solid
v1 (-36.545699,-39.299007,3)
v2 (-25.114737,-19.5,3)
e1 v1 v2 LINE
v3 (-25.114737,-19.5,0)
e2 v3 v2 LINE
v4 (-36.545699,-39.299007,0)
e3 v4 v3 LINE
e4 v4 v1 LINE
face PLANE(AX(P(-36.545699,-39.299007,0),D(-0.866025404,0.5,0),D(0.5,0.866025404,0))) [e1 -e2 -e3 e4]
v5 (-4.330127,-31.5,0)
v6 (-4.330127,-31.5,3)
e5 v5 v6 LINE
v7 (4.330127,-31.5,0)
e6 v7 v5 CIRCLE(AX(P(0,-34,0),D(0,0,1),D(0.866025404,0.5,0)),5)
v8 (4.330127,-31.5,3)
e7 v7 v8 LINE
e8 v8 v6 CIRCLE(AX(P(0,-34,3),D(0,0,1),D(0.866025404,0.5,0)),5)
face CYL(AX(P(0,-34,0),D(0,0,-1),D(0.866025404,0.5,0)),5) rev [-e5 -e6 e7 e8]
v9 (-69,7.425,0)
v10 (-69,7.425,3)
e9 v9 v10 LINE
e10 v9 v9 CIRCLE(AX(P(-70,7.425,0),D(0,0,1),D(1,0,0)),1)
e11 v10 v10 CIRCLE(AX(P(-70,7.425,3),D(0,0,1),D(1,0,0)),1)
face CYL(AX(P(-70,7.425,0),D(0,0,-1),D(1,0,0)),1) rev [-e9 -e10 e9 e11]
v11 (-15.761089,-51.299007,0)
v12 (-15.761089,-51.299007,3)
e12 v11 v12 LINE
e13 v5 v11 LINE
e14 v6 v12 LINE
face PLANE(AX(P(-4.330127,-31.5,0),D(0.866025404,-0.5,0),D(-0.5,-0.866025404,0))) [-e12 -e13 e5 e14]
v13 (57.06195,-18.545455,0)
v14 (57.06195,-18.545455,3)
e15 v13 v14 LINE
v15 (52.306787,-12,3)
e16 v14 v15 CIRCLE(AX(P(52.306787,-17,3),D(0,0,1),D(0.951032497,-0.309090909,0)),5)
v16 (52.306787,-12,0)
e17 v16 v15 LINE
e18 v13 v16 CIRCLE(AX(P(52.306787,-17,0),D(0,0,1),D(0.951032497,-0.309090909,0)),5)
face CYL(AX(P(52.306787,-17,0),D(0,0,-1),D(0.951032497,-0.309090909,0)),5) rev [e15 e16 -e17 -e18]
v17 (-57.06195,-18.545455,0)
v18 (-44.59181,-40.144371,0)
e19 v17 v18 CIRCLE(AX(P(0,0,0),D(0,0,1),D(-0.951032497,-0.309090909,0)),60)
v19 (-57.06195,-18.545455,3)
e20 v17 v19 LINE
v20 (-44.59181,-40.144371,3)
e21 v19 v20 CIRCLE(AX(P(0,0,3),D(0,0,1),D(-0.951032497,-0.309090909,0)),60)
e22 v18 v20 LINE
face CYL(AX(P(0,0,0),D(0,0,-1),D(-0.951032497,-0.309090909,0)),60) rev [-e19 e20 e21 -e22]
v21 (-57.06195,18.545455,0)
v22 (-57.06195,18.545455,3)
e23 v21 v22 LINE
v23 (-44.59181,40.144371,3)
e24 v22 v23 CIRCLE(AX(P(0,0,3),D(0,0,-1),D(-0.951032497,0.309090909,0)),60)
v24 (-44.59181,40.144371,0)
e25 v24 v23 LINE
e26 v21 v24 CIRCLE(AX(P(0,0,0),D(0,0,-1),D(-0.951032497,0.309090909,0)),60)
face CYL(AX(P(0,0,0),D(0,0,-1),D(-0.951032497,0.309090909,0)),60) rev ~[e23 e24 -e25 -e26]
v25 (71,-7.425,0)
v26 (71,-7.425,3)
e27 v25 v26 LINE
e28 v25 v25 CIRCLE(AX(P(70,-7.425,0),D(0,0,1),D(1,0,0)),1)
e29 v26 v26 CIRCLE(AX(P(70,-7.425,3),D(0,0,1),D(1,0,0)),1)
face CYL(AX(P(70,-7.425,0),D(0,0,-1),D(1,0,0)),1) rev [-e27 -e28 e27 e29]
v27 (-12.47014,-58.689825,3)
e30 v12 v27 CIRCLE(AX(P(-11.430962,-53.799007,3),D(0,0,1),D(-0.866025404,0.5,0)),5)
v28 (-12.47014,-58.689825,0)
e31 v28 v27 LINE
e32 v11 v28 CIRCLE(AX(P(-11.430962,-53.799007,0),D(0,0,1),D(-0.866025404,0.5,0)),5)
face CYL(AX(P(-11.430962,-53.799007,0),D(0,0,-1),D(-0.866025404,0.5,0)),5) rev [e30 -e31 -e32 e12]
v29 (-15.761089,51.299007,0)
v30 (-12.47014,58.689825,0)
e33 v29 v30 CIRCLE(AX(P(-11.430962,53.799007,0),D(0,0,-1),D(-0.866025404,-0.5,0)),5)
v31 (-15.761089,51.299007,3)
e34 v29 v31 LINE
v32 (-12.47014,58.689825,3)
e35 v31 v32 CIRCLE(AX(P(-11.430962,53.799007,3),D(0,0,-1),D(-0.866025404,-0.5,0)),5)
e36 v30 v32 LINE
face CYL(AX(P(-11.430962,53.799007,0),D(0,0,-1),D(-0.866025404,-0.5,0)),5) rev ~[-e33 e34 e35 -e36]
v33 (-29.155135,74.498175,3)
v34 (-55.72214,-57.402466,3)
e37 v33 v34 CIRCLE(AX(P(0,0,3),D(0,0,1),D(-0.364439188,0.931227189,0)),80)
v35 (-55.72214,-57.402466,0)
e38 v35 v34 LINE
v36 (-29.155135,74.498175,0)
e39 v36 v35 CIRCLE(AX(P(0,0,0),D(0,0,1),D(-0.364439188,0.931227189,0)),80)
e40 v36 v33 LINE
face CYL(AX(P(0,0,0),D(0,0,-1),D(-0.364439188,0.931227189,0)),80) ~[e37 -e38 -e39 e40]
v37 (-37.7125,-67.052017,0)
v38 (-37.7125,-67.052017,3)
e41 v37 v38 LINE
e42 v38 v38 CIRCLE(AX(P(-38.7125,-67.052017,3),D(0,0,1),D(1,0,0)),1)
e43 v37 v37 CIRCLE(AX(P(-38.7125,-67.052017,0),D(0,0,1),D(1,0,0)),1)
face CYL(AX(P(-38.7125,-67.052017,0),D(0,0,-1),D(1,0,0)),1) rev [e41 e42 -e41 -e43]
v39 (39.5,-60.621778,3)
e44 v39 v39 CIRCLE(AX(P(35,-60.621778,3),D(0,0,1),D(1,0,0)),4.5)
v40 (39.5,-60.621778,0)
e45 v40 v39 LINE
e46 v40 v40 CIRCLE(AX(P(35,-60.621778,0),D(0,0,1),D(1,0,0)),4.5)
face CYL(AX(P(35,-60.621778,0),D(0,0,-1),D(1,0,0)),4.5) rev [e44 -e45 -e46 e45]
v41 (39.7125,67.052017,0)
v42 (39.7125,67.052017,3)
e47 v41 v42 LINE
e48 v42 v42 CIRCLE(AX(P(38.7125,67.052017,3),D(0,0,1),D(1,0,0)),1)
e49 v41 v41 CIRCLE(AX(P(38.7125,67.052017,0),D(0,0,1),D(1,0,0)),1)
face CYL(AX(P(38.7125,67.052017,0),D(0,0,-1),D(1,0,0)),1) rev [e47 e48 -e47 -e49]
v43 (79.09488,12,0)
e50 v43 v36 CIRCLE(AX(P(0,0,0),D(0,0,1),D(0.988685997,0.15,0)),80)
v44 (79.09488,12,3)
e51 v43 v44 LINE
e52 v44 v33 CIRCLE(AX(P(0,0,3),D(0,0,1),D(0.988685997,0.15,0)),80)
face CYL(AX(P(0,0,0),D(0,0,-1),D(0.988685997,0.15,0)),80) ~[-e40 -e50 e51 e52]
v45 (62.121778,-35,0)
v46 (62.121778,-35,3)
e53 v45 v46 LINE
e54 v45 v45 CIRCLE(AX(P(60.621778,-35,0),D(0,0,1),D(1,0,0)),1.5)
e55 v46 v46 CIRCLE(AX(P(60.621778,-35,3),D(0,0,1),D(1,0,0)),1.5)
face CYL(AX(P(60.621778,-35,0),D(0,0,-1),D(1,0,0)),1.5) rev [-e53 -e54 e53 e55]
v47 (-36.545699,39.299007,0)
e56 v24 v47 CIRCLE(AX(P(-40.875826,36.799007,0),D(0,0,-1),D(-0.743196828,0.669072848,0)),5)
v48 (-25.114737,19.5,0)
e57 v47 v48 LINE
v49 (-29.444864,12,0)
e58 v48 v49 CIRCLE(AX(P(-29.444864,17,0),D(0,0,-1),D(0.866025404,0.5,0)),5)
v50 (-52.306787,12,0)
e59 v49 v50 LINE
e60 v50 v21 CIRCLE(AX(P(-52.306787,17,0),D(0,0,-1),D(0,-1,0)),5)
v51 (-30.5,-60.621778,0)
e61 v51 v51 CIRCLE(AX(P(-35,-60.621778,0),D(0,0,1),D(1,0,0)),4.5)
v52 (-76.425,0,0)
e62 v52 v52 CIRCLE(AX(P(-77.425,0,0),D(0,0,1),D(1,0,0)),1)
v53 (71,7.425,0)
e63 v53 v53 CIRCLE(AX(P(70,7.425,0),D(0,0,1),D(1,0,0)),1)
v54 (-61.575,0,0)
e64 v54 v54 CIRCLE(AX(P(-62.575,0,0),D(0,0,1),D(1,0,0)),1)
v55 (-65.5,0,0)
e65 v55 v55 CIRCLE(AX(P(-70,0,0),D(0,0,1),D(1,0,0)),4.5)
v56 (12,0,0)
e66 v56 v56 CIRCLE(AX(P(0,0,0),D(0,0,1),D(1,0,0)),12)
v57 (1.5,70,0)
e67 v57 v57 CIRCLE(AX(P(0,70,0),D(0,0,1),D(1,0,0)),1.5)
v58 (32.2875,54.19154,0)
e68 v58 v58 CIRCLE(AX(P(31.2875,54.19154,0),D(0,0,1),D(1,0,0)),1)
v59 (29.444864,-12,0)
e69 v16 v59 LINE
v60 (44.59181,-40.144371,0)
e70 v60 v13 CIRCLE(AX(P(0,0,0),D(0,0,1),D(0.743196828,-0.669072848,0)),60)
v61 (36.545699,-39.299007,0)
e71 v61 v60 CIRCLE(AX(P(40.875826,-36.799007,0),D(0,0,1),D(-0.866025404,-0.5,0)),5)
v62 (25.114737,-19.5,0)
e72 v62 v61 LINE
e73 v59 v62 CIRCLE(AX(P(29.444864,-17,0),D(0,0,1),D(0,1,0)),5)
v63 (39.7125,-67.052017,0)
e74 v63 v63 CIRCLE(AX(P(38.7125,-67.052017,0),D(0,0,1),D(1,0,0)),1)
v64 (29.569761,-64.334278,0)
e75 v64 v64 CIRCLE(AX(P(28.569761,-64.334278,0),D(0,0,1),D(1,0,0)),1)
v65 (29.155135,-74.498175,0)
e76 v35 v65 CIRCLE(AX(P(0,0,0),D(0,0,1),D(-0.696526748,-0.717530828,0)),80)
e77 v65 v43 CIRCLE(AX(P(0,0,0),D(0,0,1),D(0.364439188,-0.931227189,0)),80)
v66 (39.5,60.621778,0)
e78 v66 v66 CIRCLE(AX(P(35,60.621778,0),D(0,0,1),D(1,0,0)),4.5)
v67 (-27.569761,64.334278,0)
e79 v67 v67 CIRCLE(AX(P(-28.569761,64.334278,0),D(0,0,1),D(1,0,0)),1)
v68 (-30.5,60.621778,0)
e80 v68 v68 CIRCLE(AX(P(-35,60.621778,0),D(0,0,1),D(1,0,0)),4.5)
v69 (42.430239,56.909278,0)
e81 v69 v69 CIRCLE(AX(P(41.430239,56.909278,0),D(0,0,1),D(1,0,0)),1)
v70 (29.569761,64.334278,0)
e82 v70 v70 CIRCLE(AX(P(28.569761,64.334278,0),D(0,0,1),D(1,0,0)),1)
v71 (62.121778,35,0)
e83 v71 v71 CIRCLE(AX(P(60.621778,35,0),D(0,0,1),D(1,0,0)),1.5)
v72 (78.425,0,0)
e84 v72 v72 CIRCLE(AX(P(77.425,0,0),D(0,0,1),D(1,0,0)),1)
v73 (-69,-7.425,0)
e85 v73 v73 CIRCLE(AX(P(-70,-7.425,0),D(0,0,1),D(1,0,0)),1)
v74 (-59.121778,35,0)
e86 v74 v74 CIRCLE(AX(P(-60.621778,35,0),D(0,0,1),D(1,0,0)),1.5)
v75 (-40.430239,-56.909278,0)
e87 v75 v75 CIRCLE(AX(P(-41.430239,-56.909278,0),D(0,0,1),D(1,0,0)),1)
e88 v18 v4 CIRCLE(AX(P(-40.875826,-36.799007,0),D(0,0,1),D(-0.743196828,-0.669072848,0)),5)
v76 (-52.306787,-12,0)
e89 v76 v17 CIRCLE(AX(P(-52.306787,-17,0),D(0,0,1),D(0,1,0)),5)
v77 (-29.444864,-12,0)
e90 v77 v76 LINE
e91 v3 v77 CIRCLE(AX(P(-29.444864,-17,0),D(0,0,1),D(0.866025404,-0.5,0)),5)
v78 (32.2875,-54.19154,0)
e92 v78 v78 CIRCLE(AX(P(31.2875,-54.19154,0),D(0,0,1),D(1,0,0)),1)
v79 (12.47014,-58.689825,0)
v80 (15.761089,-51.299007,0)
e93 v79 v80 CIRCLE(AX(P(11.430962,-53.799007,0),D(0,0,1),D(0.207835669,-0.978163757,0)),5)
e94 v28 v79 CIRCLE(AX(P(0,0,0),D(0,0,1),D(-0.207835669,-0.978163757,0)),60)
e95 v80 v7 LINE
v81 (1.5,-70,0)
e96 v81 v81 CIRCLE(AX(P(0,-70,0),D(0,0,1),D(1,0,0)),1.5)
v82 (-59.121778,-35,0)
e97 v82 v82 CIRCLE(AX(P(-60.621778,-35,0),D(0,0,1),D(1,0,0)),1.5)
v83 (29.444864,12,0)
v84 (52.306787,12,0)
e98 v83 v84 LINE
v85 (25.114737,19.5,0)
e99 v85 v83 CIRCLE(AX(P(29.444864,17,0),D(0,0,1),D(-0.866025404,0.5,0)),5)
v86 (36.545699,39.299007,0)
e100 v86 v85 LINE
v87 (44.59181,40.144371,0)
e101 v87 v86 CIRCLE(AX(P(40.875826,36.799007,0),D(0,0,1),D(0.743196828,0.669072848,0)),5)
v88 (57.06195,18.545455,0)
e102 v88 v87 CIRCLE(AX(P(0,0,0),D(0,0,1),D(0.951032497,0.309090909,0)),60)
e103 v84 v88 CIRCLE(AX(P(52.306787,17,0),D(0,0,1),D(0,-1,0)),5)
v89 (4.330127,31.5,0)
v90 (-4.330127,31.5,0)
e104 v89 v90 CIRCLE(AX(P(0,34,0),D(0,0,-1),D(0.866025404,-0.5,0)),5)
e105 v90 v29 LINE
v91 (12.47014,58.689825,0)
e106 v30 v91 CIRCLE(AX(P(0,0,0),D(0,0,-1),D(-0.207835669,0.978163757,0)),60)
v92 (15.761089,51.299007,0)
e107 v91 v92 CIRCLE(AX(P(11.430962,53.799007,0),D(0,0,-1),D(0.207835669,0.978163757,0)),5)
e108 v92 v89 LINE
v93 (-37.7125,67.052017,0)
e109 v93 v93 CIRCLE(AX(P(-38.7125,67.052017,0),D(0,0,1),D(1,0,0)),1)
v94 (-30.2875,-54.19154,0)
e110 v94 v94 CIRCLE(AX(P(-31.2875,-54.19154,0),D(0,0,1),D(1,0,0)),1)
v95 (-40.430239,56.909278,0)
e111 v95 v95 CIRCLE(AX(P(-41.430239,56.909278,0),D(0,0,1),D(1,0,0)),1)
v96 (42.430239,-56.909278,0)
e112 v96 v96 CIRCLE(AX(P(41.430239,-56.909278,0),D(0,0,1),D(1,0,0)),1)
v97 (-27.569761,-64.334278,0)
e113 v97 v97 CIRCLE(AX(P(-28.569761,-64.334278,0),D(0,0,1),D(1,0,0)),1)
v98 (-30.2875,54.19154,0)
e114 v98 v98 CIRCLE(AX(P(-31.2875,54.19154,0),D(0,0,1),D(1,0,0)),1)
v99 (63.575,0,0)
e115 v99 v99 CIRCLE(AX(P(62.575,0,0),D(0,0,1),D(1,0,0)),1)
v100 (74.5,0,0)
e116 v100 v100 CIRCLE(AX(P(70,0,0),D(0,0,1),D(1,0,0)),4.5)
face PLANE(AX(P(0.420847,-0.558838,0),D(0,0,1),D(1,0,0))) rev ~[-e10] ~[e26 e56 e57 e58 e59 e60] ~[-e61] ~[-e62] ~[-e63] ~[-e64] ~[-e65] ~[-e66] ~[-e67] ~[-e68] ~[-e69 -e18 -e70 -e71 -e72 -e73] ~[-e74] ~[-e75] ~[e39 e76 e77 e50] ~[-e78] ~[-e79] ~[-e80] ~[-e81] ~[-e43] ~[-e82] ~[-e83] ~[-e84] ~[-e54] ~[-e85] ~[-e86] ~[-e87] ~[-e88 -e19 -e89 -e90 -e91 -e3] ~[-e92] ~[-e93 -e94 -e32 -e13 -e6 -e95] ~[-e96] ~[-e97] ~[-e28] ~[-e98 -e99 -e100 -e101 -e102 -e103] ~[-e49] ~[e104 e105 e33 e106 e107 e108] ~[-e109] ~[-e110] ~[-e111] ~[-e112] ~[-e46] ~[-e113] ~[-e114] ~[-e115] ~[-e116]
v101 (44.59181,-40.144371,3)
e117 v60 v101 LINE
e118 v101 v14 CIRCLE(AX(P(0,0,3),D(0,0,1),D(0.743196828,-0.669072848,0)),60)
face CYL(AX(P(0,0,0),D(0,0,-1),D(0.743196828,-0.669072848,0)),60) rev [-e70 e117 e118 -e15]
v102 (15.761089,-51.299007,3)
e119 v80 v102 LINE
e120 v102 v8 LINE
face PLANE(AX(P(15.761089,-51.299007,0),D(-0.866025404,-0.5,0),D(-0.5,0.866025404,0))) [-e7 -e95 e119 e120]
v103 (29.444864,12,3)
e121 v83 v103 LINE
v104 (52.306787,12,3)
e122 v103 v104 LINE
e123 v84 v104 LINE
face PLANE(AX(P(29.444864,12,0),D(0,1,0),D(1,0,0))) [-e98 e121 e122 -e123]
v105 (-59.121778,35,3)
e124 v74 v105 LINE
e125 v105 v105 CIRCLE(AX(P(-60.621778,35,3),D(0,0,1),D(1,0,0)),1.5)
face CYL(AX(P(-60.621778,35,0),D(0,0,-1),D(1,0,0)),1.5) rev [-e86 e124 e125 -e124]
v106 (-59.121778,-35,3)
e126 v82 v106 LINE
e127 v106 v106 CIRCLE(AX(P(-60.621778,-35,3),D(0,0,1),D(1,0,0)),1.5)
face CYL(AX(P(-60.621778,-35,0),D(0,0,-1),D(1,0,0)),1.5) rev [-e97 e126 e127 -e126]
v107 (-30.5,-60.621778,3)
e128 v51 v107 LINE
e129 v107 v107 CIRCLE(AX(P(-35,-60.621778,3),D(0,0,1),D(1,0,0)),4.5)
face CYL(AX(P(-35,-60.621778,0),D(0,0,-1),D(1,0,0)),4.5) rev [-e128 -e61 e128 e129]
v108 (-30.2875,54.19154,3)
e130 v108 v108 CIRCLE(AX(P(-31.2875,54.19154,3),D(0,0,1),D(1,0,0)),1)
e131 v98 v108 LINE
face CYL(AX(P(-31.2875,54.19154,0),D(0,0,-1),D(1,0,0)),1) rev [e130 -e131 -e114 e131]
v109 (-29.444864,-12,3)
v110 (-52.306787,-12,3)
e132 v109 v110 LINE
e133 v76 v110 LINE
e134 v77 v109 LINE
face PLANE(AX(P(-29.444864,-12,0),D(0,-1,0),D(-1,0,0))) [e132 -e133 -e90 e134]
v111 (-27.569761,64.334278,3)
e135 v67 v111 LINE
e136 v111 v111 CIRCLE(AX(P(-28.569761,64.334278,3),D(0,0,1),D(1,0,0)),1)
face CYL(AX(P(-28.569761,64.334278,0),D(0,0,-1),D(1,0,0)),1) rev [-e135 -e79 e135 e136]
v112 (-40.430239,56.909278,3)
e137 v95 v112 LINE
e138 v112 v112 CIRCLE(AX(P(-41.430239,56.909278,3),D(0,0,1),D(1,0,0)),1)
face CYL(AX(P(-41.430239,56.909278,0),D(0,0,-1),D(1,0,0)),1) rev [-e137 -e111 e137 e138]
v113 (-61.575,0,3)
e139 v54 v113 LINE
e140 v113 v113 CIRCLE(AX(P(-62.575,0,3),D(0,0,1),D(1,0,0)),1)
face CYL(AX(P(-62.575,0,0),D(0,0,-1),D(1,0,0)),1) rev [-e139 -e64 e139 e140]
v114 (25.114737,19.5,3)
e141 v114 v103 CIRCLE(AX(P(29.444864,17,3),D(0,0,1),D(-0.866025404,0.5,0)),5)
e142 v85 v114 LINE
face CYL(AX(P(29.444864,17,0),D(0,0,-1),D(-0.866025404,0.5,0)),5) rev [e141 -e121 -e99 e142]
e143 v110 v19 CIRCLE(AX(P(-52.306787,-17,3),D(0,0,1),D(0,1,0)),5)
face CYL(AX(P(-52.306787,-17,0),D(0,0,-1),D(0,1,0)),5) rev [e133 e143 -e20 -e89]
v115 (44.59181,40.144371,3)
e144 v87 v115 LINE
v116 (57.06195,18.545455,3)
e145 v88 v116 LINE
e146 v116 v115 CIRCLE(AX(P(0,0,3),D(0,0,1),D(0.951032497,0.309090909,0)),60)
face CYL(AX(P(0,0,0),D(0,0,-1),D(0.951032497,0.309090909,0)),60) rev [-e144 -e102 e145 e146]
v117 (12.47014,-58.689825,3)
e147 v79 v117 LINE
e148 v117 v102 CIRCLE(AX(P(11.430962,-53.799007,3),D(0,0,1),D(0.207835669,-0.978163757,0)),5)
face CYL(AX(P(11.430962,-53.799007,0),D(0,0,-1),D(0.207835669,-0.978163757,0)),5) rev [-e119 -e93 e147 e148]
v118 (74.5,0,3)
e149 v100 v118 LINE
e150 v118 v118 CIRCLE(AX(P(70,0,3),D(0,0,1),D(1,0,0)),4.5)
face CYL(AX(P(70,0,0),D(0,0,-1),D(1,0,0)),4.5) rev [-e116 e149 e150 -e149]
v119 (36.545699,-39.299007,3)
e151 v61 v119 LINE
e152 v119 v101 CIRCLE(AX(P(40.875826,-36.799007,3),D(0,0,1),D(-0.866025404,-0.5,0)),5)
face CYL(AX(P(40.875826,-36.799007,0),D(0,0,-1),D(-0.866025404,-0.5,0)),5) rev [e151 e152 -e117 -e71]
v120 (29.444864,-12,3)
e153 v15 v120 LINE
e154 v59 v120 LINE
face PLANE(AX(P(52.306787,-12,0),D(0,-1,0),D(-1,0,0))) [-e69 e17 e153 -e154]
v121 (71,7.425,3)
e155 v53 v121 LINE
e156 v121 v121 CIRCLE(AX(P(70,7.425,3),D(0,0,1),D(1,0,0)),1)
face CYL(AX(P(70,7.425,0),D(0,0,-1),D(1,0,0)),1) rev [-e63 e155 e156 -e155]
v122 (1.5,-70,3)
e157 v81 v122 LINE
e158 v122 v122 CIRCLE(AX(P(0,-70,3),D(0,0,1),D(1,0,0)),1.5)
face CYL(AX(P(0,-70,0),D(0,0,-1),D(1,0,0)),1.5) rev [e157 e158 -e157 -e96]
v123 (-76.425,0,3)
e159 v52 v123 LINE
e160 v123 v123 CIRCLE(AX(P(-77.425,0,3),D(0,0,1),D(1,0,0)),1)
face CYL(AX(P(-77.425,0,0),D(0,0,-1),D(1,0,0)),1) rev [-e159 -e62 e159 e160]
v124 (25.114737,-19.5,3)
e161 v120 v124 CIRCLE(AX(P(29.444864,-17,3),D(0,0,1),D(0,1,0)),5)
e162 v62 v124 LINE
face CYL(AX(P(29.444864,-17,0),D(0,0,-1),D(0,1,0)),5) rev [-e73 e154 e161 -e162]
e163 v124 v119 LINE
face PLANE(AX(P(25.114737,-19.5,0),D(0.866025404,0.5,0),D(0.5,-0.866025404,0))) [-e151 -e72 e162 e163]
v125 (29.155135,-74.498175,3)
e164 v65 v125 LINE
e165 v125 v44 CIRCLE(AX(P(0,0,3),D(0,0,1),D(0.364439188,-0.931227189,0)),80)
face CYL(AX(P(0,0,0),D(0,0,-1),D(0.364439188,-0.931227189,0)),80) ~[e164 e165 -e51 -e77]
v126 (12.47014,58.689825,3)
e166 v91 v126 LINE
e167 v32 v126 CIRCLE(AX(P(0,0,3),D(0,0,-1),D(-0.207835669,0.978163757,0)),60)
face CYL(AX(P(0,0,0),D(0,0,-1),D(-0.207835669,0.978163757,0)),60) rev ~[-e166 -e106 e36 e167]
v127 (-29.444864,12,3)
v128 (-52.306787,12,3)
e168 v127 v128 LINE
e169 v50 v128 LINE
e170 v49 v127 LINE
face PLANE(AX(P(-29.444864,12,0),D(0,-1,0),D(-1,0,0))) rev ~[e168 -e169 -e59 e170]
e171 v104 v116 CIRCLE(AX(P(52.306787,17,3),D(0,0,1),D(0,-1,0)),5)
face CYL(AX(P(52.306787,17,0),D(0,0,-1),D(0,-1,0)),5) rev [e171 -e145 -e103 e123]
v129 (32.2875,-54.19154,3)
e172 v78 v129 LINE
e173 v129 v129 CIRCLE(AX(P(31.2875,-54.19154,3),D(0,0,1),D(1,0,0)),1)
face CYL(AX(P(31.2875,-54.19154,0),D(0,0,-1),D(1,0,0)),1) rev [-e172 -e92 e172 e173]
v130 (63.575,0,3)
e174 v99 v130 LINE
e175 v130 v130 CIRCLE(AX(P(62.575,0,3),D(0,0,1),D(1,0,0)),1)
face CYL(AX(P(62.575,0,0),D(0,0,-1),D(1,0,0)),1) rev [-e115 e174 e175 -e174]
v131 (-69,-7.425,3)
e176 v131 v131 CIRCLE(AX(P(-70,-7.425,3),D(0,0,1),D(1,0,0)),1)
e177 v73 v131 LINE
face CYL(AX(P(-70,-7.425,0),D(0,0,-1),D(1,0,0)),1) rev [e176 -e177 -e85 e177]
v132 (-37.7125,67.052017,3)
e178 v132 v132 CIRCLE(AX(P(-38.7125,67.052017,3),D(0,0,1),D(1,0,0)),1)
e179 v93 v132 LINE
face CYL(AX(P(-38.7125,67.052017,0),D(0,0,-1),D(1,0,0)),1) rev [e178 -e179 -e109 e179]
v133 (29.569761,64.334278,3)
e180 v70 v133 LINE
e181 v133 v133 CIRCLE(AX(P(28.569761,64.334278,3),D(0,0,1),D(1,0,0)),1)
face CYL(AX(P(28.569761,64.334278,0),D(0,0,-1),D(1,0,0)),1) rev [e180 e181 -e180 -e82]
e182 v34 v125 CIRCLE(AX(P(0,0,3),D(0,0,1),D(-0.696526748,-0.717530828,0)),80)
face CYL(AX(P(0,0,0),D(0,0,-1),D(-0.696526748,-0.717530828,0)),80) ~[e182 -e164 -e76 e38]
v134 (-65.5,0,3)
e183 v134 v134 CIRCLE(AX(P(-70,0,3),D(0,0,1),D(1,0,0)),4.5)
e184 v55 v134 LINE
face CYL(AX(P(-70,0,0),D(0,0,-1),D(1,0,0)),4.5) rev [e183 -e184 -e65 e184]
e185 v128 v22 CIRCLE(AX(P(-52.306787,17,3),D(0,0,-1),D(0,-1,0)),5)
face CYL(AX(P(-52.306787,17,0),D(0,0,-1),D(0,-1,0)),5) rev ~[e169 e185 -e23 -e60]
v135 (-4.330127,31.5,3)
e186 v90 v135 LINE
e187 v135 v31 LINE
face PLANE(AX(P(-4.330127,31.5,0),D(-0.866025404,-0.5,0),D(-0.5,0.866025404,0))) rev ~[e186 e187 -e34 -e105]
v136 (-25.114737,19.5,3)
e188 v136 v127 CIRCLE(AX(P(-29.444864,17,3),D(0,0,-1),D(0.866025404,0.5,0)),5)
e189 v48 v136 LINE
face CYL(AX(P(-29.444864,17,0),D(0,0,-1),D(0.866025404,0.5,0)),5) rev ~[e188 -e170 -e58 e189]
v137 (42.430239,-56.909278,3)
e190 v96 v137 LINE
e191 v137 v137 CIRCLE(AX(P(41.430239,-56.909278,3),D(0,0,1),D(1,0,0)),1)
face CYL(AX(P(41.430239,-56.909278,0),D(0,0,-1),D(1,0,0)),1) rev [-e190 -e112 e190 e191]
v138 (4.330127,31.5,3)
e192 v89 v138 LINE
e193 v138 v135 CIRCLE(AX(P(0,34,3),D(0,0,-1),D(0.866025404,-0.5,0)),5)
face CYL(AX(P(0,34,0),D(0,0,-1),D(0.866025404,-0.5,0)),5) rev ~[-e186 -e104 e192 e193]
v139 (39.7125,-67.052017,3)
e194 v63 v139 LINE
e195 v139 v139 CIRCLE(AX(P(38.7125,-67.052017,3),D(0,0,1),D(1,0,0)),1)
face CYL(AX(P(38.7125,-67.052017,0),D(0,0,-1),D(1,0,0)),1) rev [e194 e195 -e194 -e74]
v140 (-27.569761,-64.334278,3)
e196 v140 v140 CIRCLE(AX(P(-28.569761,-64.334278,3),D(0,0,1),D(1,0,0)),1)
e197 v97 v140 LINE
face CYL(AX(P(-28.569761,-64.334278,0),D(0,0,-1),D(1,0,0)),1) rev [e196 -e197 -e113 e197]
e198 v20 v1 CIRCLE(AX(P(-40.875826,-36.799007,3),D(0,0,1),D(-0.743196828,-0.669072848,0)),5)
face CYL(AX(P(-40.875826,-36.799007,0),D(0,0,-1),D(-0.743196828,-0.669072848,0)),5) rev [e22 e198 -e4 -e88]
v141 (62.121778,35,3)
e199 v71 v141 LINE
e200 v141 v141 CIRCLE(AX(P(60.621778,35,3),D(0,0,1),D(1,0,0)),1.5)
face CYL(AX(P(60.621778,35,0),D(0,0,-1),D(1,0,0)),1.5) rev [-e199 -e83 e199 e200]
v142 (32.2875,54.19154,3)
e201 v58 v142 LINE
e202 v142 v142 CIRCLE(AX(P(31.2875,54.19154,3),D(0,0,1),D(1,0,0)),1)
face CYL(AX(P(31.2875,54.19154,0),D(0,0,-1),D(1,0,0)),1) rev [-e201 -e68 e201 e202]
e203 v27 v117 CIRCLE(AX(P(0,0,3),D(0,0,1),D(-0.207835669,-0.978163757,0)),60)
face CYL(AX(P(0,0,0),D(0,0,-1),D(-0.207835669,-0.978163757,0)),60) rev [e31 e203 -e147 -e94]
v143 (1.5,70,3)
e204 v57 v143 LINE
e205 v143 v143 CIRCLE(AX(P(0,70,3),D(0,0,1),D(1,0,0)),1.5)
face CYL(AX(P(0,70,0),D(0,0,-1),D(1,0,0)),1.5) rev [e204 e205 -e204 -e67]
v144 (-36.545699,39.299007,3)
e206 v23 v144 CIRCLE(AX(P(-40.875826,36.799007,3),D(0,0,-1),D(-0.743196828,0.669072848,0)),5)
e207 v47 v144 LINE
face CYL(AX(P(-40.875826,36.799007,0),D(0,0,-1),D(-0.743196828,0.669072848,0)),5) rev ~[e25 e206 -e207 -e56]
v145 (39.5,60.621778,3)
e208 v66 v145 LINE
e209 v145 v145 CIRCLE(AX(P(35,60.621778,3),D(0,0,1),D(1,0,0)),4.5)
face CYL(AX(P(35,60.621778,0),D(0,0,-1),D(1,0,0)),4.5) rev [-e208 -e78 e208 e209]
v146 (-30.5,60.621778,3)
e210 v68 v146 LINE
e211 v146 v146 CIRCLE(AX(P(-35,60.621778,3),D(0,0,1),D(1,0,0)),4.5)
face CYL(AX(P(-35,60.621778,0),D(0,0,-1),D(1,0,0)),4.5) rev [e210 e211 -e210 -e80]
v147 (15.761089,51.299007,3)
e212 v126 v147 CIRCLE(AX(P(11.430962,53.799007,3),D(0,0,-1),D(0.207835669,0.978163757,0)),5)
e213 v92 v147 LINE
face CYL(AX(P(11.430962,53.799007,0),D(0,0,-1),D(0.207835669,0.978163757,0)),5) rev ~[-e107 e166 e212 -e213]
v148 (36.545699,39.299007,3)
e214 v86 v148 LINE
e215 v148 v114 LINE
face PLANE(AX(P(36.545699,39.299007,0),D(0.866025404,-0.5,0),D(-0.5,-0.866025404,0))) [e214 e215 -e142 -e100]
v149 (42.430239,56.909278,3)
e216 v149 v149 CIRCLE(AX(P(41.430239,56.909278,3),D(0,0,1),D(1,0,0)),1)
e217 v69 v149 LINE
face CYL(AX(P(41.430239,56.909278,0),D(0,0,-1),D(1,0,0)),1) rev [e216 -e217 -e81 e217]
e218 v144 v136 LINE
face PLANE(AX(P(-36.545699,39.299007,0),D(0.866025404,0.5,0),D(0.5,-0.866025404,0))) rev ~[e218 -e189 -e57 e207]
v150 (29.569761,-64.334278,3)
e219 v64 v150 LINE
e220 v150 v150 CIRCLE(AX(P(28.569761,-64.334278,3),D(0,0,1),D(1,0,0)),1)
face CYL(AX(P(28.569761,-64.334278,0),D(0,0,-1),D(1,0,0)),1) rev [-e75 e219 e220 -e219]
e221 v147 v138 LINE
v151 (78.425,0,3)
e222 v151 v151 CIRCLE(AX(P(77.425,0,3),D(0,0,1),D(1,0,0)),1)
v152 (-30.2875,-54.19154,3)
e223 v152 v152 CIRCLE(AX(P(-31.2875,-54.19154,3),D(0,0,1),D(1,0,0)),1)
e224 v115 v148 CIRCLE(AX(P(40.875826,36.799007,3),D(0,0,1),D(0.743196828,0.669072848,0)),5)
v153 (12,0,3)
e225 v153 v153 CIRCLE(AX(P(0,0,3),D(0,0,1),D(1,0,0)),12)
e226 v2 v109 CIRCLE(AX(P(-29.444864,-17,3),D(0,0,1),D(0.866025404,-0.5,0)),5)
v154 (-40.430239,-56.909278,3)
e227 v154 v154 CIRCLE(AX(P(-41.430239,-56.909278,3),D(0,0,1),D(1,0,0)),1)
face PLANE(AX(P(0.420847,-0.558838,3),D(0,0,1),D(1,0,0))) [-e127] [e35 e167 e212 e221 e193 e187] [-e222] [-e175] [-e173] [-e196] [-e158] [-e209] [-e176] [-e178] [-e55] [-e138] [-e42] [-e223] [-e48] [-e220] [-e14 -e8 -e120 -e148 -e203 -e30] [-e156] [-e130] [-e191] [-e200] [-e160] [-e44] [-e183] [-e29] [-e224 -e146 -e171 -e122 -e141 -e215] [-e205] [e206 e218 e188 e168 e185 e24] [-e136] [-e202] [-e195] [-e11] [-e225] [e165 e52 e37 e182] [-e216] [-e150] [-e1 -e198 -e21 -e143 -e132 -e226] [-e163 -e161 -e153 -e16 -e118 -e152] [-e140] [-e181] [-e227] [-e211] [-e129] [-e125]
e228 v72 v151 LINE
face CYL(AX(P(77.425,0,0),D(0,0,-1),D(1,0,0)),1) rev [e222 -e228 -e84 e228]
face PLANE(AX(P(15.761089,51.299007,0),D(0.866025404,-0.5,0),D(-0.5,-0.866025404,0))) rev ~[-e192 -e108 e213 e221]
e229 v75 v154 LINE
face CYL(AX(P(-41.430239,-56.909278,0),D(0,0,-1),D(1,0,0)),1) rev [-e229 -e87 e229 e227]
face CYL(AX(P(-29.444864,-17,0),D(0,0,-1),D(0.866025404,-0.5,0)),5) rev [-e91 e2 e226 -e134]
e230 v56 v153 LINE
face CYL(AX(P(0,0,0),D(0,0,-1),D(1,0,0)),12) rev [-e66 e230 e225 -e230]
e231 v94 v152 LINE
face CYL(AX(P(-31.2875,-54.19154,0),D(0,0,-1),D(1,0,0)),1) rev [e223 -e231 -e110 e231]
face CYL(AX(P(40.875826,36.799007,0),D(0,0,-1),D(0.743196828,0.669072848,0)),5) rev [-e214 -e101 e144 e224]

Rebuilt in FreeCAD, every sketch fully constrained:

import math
import FreeCAD as App
import Part
import Sketcher

V = App.Vector
Q = App.Units.Quantity

doc = App.newDocument("Part")
body = doc.addObject("PartDesign::Body", "Body")

# Sketch on XY plane
sketch1 = body.newObject("Sketcher::SketchObject", "Sketch")
sketch1.AttachmentSupport = (doc.getObject("XY_Plane"), [""])
sketch1.MapMode = "FlatFace"
sketch1.addGeometry(Part.ArcOfCircle(Part.Circle(V(0, 0, 0), V(0, 0, 1), 80), math.radians(-134.149005), math.radians(-68.626927)), False)
sketch1.addGeometry(Part.ArcOfCircle(Part.Circle(V(0, 0, 0), V(0, 0, 1), 80), math.radians(-68.626927), math.radians(8.626927)), False)
sketch1.addGeometry(Part.ArcOfCircle(Part.Circle(V(0, 0, 0), V(0, 0, 1), 80), math.radians(8.626927), math.radians(111.373073)), False)
sketch1.addGeometry(Part.ArcOfCircle(Part.Circle(V(0, 0, 0), V(0, 0, 1), 80), math.radians(111.373073), math.radians(225.850995)), False)
sketch1.addGeometry(Part.Circle(V(-41.430239, -56.909278, 0), V(0, 0, 1), 1), False)
sketch1.addGeometry(Part.Circle(V(-38.7125, -67.052017, 0), V(0, 0, 1), 1), False)
sketch1.addGeometry(Part.Circle(V(-28.569761, -64.334278, 0), V(0, 0, 1), 1), False)
sketch1.addGeometry(Part.Circle(V(-35, -60.621778, 0), V(0, 0, 1), 4.5), False)
sketch1.addGeometry(Part.Circle(V(-31.2875, -54.19154, 0), V(0, 0, 1), 1), False)
sketch1.addGeometry(Part.Circle(V(-60.621778, -35, 0), V(0, 0, 1), 1.5), False)
sketch1.addGeometry(Part.LineSegment(V(-25.114737, -19.5, 0), V(-36.545699, -39.299007, 0)), False)
sketch1.addGeometry(Part.ArcOfCircle(Part.Circle(V(-40.875826, -36.799007, 0), V(0, 0, 1), 5), math.radians(-138.004453), math.radians(-30)), False)
sketch1.addGeometry(Part.ArcOfCircle(Part.Circle(V(0, 0, 0), V(0, 0, 1), 60), math.radians(-161.995547), math.radians(-138.004453)), False)
sketch1.addGeometry(Part.ArcOfCircle(Part.Circle(V(-52.306787, -17, 0), V(0, 0, 1), 5), math.radians(90), math.radians(198.004453)), False)
sketch1.addGeometry(Part.LineSegment(V(-52.306787, -12, 0), V(-29.444864, -12, 0)), False)
sketch1.addGeometry(Part.ArcOfCircle(Part.Circle(V(-29.444864, -17, 0), V(0, 0, 1), 5), math.radians(-30), math.radians(90)), False)
sketch1.addGeometry(Part.Circle(V(-70, -7.425, 0), V(0, 0, 1), 1), False)
sketch1.addGeometry(Part.Circle(V(0, -70, 0), V(0, 0, 1), 1.5), False)
sketch1.addGeometry(Part.Circle(V(28.569761, -64.334278, 0), V(0, 0, 1), 1), False)
sketch1.addGeometry(Part.Circle(V(38.7125, -67.052017, 0), V(0, 0, 1), 1), False)
sketch1.addGeometry(Part.Circle(V(35, -60.621778, 0), V(0, 0, 1), 4.5), False)
sketch1.addGeometry(Part.Circle(V(31.2875, -54.19154, 0), V(0, 0, 1), 1), False)
sketch1.addGeometry(Part.LineSegment(V(4.330127, -31.5, 0), V(15.761089, -51.299007, 0)), False)
sketch1.addGeometry(Part.ArcOfCircle(Part.Circle(V(11.430962, -53.799007, 0), V(0, 0, 1), 5), math.radians(-78.004453), math.radians(30)), False)
sketch1.addGeometry(Part.ArcOfCircle(Part.Circle(V(0, 0, 0), V(0, 0, 1), 60), math.radians(-101.995547), math.radians(-78.004453)), False)
sketch1.addGeometry(Part.ArcOfCircle(Part.Circle(V(-11.430962, -53.799007, 0), V(0, 0, 1), 5), math.radians(150), math.radians(258.004453)), False)
sketch1.addGeometry(Part.LineSegment(V(-15.761089, -51.299007, 0), V(-4.330127, -31.5, 0)), False)
sketch1.addGeometry(Part.ArcOfCircle(Part.Circle(V(0, -34, 0), V(0, 0, 1), 5), math.radians(30), math.radians(150)), False)
sketch1.addGeometry(Part.Circle(V(41.430239, -56.909278, 0), V(0, 0, 1), 1), False)
sketch1.addGeometry(Part.LineSegment(V(29.444864, -12, 0), V(52.306787, -12, 0)), False)
sketch1.addGeometry(Part.ArcOfCircle(Part.Circle(V(52.306787, -17, 0), V(0, 0, 1), 5), math.radians(-18.004453), math.radians(90)), False)
sketch1.addGeometry(Part.ArcOfCircle(Part.Circle(V(0, 0, 0), V(0, 0, 1), 60), math.radians(-41.995547), math.radians(-18.004453)), False)
sketch1.addGeometry(Part.ArcOfCircle(Part.Circle(V(40.875826, -36.799007, 0), V(0, 0, 1), 5), math.radians(-150), math.radians(-41.995547)), False)
sketch1.addGeometry(Part.LineSegment(V(36.545699, -39.299007, 0), V(25.114737, -19.5, 0)), False)
sketch1.addGeometry(Part.ArcOfCircle(Part.Circle(V(29.444864, -17, 0), V(0, 0, 1), 5), math.radians(90), math.radians(210)), False)
sketch1.addGeometry(Part.Circle(V(60.621778, -35, 0), V(0, 0, 1), 1.5), False)
sketch1.addGeometry(Part.Circle(V(70, -7.425, 0), V(0, 0, 1), 1), False)
sketch1.addGeometry(Part.Circle(V(-77.425, 0, 0), V(0, 0, 1), 1), False)
sketch1.addGeometry(Part.Circle(V(-70, 0, 0), V(0, 0, 1), 4.5), False)
sketch1.addGeometry(Part.Circle(V(-70, 7.425, 0), V(0, 0, 1), 1), False)
sketch1.addGeometry(Part.Circle(V(-62.575, 0, 0), V(0, 0, 1), 1), False)
sketch1.addGeometry(Part.Circle(V(-60.621778, 35, 0), V(0, 0, 1), 1.5), False)
sketch1.addGeometry(Part.ArcOfCircle(Part.Circle(V(-40.875826, 36.799007, 0), V(0, 0, 1), 5), math.radians(30), math.radians(138.004453)), False)
sketch1.addGeometry(Part.LineSegment(V(-36.545699, 39.299007, 0), V(-25.114737, 19.5, 0)), False)
sketch1.addGeometry(Part.ArcOfCircle(Part.Circle(V(-29.444864, 17, 0), V(0, 0, 1), 5), math.radians(-90), math.radians(30)), False)
sketch1.addGeometry(Part.LineSegment(V(-29.444864, 12, 0), V(-52.306787, 12, 0)), False)
sketch1.addGeometry(Part.ArcOfCircle(Part.Circle(V(-52.306787, 17, 0), V(0, 0, 1), 5), math.radians(161.995547), math.radians(270)), False)
sketch1.addGeometry(Part.ArcOfCircle(Part.Circle(V(0, 0, 0), V(0, 0, 1), 60), math.radians(138.004453), math.radians(161.995547)), False)
sketch1.addGeometry(Part.Circle(V(-41.430239, 56.909278, 0), V(0, 0, 1), 1), False)
sketch1.addGeometry(Part.Circle(V(-31.2875, 54.19154, 0), V(0, 0, 1), 1), False)
sketch1.addGeometry(Part.Circle(V(-35, 60.621778, 0), V(0, 0, 1), 4.5), False)
sketch1.addGeometry(Part.Circle(V(-38.7125, 67.052017, 0), V(0, 0, 1), 1), False)
sketch1.addGeometry(Part.Circle(V(-28.569761, 64.334278, 0), V(0, 0, 1), 1), False)
sketch1.addGeometry(Part.Circle(V(0, 0, 0), V(0, 0, 1), 12), False)
sketch1.addGeometry(Part.Circle(V(62.575, 0, 0), V(0, 0, 1), 1), False)
sketch1.addGeometry(Part.Circle(V(70, 0, 0), V(0, 0, 1), 4.5), False)
sketch1.addGeometry(Part.Circle(V(77.425, 0, 0), V(0, 0, 1), 1), False)
sketch1.addGeometry(Part.Circle(V(70, 7.425, 0), V(0, 0, 1), 1), False)
sketch1.addGeometry(Part.LineSegment(V(25.114737, 19.5, 0), V(36.545699, 39.299007, 0)), False)
sketch1.addGeometry(Part.ArcOfCircle(Part.Circle(V(40.875826, 36.799007, 0), V(0, 0, 1), 5), math.radians(41.995547), math.radians(150)), False)
sketch1.addGeometry(Part.ArcOfCircle(Part.Circle(V(0, 0, 0), V(0, 0, 1), 60), math.radians(18.004453), math.radians(41.995547)), False)
sketch1.addGeometry(Part.ArcOfCircle(Part.Circle(V(52.306787, 17, 0), V(0, 0, 1), 5), math.radians(-90), math.radians(18.004453)), False)
sketch1.addGeometry(Part.LineSegment(V(52.306787, 12, 0), V(29.444864, 12, 0)), False)
sketch1.addGeometry(Part.ArcOfCircle(Part.Circle(V(29.444864, 17, 0), V(0, 0, 1), 5), math.radians(150), math.radians(270)), False)
sketch1.addGeometry(Part.Circle(V(60.621778, 35, 0), V(0, 0, 1), 1.5), False)
sketch1.addGeometry(Part.ArcOfCircle(Part.Circle(V(11.430962, 53.799007, 0), V(0, 0, 1), 5), math.radians(-30), math.radians(78.004453)), False)
sketch1.addGeometry(Part.LineSegment(V(15.761089, 51.299007, 0), V(4.330127, 31.5, 0)), False)
sketch1.addGeometry(Part.ArcOfCircle(Part.Circle(V(0, 34, 0), V(0, 0, 1), 5), math.radians(-150), math.radians(-30)), False)
sketch1.addGeometry(Part.LineSegment(V(-4.330127, 31.5, 0), V(-15.761089, 51.299007, 0)), False)
sketch1.addGeometry(Part.ArcOfCircle(Part.Circle(V(-11.430962, 53.799007, 0), V(0, 0, 1), 5), math.radians(101.995547), math.radians(210)), False)
sketch1.addGeometry(Part.ArcOfCircle(Part.Circle(V(0, 0, 0), V(0, 0, 1), 60), math.radians(78.004453), math.radians(101.995547)), False)
sketch1.addGeometry(Part.Circle(V(0, 70, 0), V(0, 0, 1), 1.5), False)
sketch1.addGeometry(Part.Circle(V(31.2875, 54.19154, 0), V(0, 0, 1), 1), False)
sketch1.addGeometry(Part.Circle(V(35, 60.621778, 0), V(0, 0, 1), 4.5), False)
sketch1.addGeometry(Part.Circle(V(28.569761, 64.334278, 0), V(0, 0, 1), 1), False)
sketch1.addGeometry(Part.Circle(V(38.7125, 67.052017, 0), V(0, 0, 1), 1), False)
sketch1.addGeometry(Part.Circle(V(41.430239, 56.909278, 0), V(0, 0, 1), 1), False)
sketch1.addConstraint(Sketcher.Constraint("Tangent", 0, 2, 1, 1))
sketch1.addConstraint(Sketcher.Constraint("Tangent", 1, 2, 2, 1))
sketch1.addConstraint(Sketcher.Constraint("Tangent", 2, 2, 3, 1))
sketch1.addConstraint(Sketcher.Constraint("Tangent", 3, 2, 0, 1))
sketch1.addConstraint(Sketcher.Constraint("Tangent", 10, 2, 11, 2))
sketch1.addConstraint(Sketcher.Constraint("Tangent", 11, 1, 12, 2))
sketch1.addConstraint(Sketcher.Constraint("Tangent", 12, 1, 13, 2))
sketch1.addConstraint(Sketcher.Constraint("Tangent", 13, 1, 14, 1))
sketch1.addConstraint(Sketcher.Constraint("Tangent", 14, 2, 15, 2))
sketch1.addConstraint(Sketcher.Constraint("Tangent", 15, 1, 10, 1))
sketch1.addConstraint(Sketcher.Constraint("Tangent", 22, 2, 23, 2))
sketch1.addConstraint(Sketcher.Constraint("Tangent", 23, 1, 24, 2))
sketch1.addConstraint(Sketcher.Constraint("Tangent", 24, 1, 25, 2))
sketch1.addConstraint(Sketcher.Constraint("Tangent", 25, 1, 26, 1))
sketch1.addConstraint(Sketcher.Constraint("Tangent", 26, 2, 27, 2))
sketch1.addConstraint(Sketcher.Constraint("Tangent", 27, 1, 22, 1))
sketch1.addConstraint(Sketcher.Constraint("Tangent", 29, 2, 30, 2))
sketch1.addConstraint(Sketcher.Constraint("Tangent", 30, 1, 31, 2))
sketch1.addConstraint(Sketcher.Constraint("Tangent", 31, 1, 32, 2))
sketch1.addConstraint(Sketcher.Constraint("Tangent", 32, 1, 33, 1))
sketch1.addConstraint(Sketcher.Constraint("Tangent", 33, 2, 34, 2))
sketch1.addConstraint(Sketcher.Constraint("Tangent", 34, 1, 29, 1))
sketch1.addConstraint(Sketcher.Constraint("Tangent", 42, 1, 43, 1))
sketch1.addConstraint(Sketcher.Constraint("Tangent", 43, 2, 44, 2))
sketch1.addConstraint(Sketcher.Constraint("Tangent", 44, 1, 45, 1))
sketch1.addConstraint(Sketcher.Constraint("Tangent", 45, 2, 46, 2))
sketch1.addConstraint(Sketcher.Constraint("Tangent", 46, 1, 47, 2))
sketch1.addConstraint(Sketcher.Constraint("Tangent", 47, 1, 42, 2))
sketch1.addConstraint(Sketcher.Constraint("Tangent", 58, 2, 59, 2))
sketch1.addConstraint(Sketcher.Constraint("Tangent", 59, 1, 60, 2))
sketch1.addConstraint(Sketcher.Constraint("Tangent", 60, 1, 61, 2))
sketch1.addConstraint(Sketcher.Constraint("Tangent", 61, 1, 62, 1))
sketch1.addConstraint(Sketcher.Constraint("Tangent", 62, 2, 63, 2))
sketch1.addConstraint(Sketcher.Constraint("Tangent", 63, 1, 58, 1))
sketch1.addConstraint(Sketcher.Constraint("Tangent", 65, 1, 66, 1))
sketch1.addConstraint(Sketcher.Constraint("Tangent", 66, 2, 67, 2))
sketch1.addConstraint(Sketcher.Constraint("Tangent", 67, 1, 68, 1))
sketch1.addConstraint(Sketcher.Constraint("Tangent", 68, 2, 69, 2))
sketch1.addConstraint(Sketcher.Constraint("Tangent", 69, 1, 70, 2))
sketch1.addConstraint(Sketcher.Constraint("Tangent", 70, 1, 65, 2))
sketch1.addConstraint(Sketcher.Constraint("Horizontal", 14))
sketch1.addConstraint(Sketcher.Constraint("Horizontal", 29))
sketch1.addConstraint(Sketcher.Constraint("Horizontal", 45))
sketch1.addConstraint(Sketcher.Constraint("Horizontal", 62))
sketch1.addConstraint(Sketcher.Constraint("Coincident", 0, 3, -1, 1))
sketch1.addConstraint(Sketcher.Constraint("Coincident", 12, 3, -1, 1))
sketch1.addConstraint(Sketcher.Constraint("Coincident", 24, 3, -1, 1))
sketch1.addConstraint(Sketcher.Constraint("Coincident", 31, 3, -1, 1))
sketch1.addConstraint(Sketcher.Constraint("Coincident", 47, 3, -1, 1))
sketch1.addConstraint(Sketcher.Constraint("Coincident", 53, 3, -1, 1))
sketch1.addConstraint(Sketcher.Constraint("Coincident", 60, 3, -1, 1))
sketch1.addConstraint(Sketcher.Constraint("Coincident", 70, 3, -1, 1))
sketch1.addConstraint(Sketcher.Constraint("Equal", 0, 1))
sketch1.addConstraint(Sketcher.Constraint("Equal", 4, 5))
sketch1.addConstraint(Sketcher.Constraint("Equal", 5, 6))
sketch1.addConstraint(Sketcher.Constraint("Equal", 6, 8))
sketch1.addConstraint(Sketcher.Constraint("Equal", 11, 13))
sketch1.addConstraint(Sketcher.Constraint("Equal", 13, 15))
sketch1.addConstraint(Sketcher.Constraint("Equal", 8, 16))
sketch1.addConstraint(Sketcher.Constraint("Equal", 9, 17))
sketch1.addConstraint(Sketcher.Constraint("Equal", 16, 18))
sketch1.addConstraint(Sketcher.Constraint("Equal", 18, 19))
sketch1.addConstraint(Sketcher.Constraint("Equal", 7, 20))
sketch1.addConstraint(Sketcher.Constraint("Equal", 19, 21))
sketch1.addConstraint(Sketcher.Constraint("Equal", 15, 23))
sketch1.addConstraint(Sketcher.Constraint("Equal", 12, 24))
sketch1.addConstraint(Sketcher.Constraint("Equal", 23, 25))
sketch1.addConstraint(Sketcher.Constraint("Equal", 25, 27))
sketch1.addConstraint(Sketcher.Constraint("Equal", 21, 28))
sketch1.addConstraint(Sketcher.Constraint("Equal", 27, 30))
sketch1.addConstraint(Sketcher.Constraint("Equal", 24, 31))
sketch1.addConstraint(Sketcher.Constraint("Equal", 30, 32))
sketch1.addConstraint(Sketcher.Constraint("Equal", 32, 34))
sketch1.addConstraint(Sketcher.Constraint("Equal", 17, 35))
sketch1.addConstraint(Sketcher.Constraint("Equal", 28, 36))
sketch1.addConstraint(Sketcher.Constraint("Equal", 36, 37))
sketch1.addConstraint(Sketcher.Constraint("Equal", 20, 38))
sketch1.addConstraint(Sketcher.Constraint("Equal", 37, 39))
sketch1.addConstraint(Sketcher.Constraint("Equal", 39, 40))
sketch1.addConstraint(Sketcher.Constraint("Equal", 35, 41))
sketch1.addConstraint(Sketcher.Constraint("Equal", 34, 42))
sketch1.addConstraint(Sketcher.Constraint("Equal", 42, 44))
sketch1.addConstraint(Sketcher.Constraint("Equal", 44, 46))
sketch1.addConstraint(Sketcher.Constraint("Equal", 31, 47))
sketch1.addConstraint(Sketcher.Constraint("Equal", 40, 48))
sketch1.addConstraint(Sketcher.Constraint("Equal", 48, 49))
sketch1.addConstraint(Sketcher.Constraint("Equal", 38, 50))
sketch1.addConstraint(Sketcher.Constraint("Equal", 49, 51))
sketch1.addConstraint(Sketcher.Constraint("Equal", 51, 52))
sketch1.addConstraint(Sketcher.Constraint("Equal", 52, 54))
sketch1.addConstraint(Sketcher.Constraint("Equal", 50, 55))
sketch1.addConstraint(Sketcher.Constraint("Equal", 54, 56))
sketch1.addConstraint(Sketcher.Constraint("Equal", 56, 57))
sketch1.addConstraint(Sketcher.Constraint("Equal", 46, 59))
sketch1.addConstraint(Sketcher.Constraint("Equal", 47, 60))
sketch1.addConstraint(Sketcher.Constraint("Equal", 59, 61))
sketch1.addConstraint(Sketcher.Constraint("Equal", 61, 63))
sketch1.addConstraint(Sketcher.Constraint("Equal", 41, 64))
sketch1.addConstraint(Sketcher.Constraint("Equal", 63, 65))
sketch1.addConstraint(Sketcher.Constraint("Equal", 65, 67))
sketch1.addConstraint(Sketcher.Constraint("Equal", 67, 69))
sketch1.addConstraint(Sketcher.Constraint("Equal", 60, 70))
sketch1.addConstraint(Sketcher.Constraint("Equal", 64, 71))
sketch1.addConstraint(Sketcher.Constraint("Equal", 57, 72))
sketch1.addConstraint(Sketcher.Constraint("Equal", 55, 73))
sketch1.addConstraint(Sketcher.Constraint("Equal", 72, 74))
sketch1.addConstraint(Sketcher.Constraint("Equal", 74, 75))
sketch1.addConstraint(Sketcher.Constraint("Equal", 75, 76))
sketch1.addConstraint(Sketcher.Constraint("Symmetric", 36, 3, 39, 3, -1, 1))
sketch1.addConstraint(Sketcher.Constraint("Symmetric", 35, 3, 41, 3, -1, 1))
sketch1.addConstraint(Sketcher.Constraint("Symmetric", 34, 3, 44, 3, -1, 1))
sketch1.addConstraint(Sketcher.Constraint("Symmetric", 28, 3, 48, 3, -1, 1))
sketch1.addConstraint(Sketcher.Constraint("Symmetric", 21, 3, 49, 3, -1, 1))
sketch1.addConstraint(Sketcher.Constraint("Symmetric", 20, 3, 50, 3, -1, 1))
sketch1.addConstraint(Sketcher.Constraint("Symmetric", 19, 3, 51, 3, -1, 1))
sketch1.addConstraint(Sketcher.Constraint("Symmetric", 18, 3, 52, 3, -1, 1))
sketch1.addConstraint(Sketcher.Constraint("Symmetric", 40, 3, 54, 3, -1, 1))
sketch1.addConstraint(Sketcher.Constraint("Symmetric", 38, 3, 55, 3, -1, 1))
sketch1.addConstraint(Sketcher.Constraint("Symmetric", 37, 3, 56, 3, -1, 1))
sketch1.addConstraint(Sketcher.Constraint("Symmetric", 16, 3, 57, 3, -1, 1))
sketch1.addConstraint(Sketcher.Constraint("Symmetric", 15, 3, 63, 3, -1, 1))
sketch1.addConstraint(Sketcher.Constraint("Symmetric", 9, 3, 64, 3, -1, 1))
sketch1.addConstraint(Sketcher.Constraint("Symmetric", 27, 3, 67, 3, -1, 1))
sketch1.addConstraint(Sketcher.Constraint("Symmetric", 17, 3, 71, 3, -1, 1))
sketch1.addConstraint(Sketcher.Constraint("Symmetric", 8, 3, 72, 3, -1, 1))
sketch1.addConstraint(Sketcher.Constraint("Symmetric", 7, 3, 73, 3, -1, 1))
sketch1.addConstraint(Sketcher.Constraint("Symmetric", 6, 3, 74, 3, -1, 1))
sketch1.addConstraint(Sketcher.Constraint("Symmetric", 5, 3, 75, 3, -1, 1))
sketch1.addConstraint(Sketcher.Constraint("Symmetric", 4, 3, 76, 3, -1, 1))
sketch1.addConstraint(Sketcher.Constraint("Symmetric", 6, 3, 18, 3, -2))
sketch1.addConstraint(Sketcher.Constraint("Symmetric", 5, 3, 19, 3, -2))
sketch1.addConstraint(Sketcher.Constraint("Symmetric", 7, 3, 20, 3, -2))
sketch1.addConstraint(Sketcher.Constraint("Symmetric", 8, 3, 21, 3, -2))
sketch1.addConstraint(Sketcher.Constraint("Symmetric", 4, 3, 28, 3, -2))
sketch1.addConstraint(Sketcher.Constraint("Symmetric", 15, 3, 34, 3, -2))
sketch1.addConstraint(Sketcher.Constraint("Symmetric", 9, 3, 35, 3, -2))
sketch1.addConstraint(Sketcher.Constraint("Symmetric", 16, 3, 36, 3, -2))
sketch1.addConstraint(Sketcher.Constraint("Symmetric", 22, 2, 25, 1, -2))
sketch1.addConstraint(Sketcher.Constraint("PointOnObject", 17, 3, -2))
sketch1.addConstraint(Sketcher.Constraint("PointOnObject", 37, 3, -1))
sketch1.addConstraint(Sketcher.Constraint("PointOnObject", 38, 3, -1))
sketch1.addConstraint(Sketcher.Constraint("PointOnObject", 40, 3, -1))
sketch1.addConstraint(Sketcher.Constraint("Parallel", 10, 26))
sketch1.addConstraint(Sketcher.Constraint("Parallel", 22, 33))
sketch1.addConstraint(Sketcher.Constraint("Parallel", 33, 43))
sketch1.addConstraint(Sketcher.Constraint("Parallel", 26, 58))
sketch1.addConstraint(Sketcher.Constraint("Parallel", 58, 66))
sketch1.addConstraint(Sketcher.Constraint("Parallel", 43, 68))
sketch1.addConstraint(Sketcher.Constraint("Horizontal", 1, 2, 44, 1))
sketch1.addConstraint(Sketcher.Constraint("Vertical", 16, 3, 38, 3))
sketch1.addConstraint(Sketcher.Constraint("Equal", 10, 22))
sketch1.addConstraint(Sketcher.Constraint("Diameter", 4, 2.0))
sketch1.addConstraint(Sketcher.Constraint("Diameter", 7, 9.0))
sketch1.addConstraint(Sketcher.Constraint("Diameter", 9, 3.0))
sketch1.addConstraint(Sketcher.Constraint("Diameter", 53, 24.0))
sketch1.addConstraint(Sketcher.Constraint("Radius", 0, 80.0))
sketch1.addConstraint(Sketcher.Constraint("Radius", 11, 5.0))
sketch1.addConstraint(Sketcher.Constraint("Radius", 12, 60.0))
sketch1.addConstraint(Sketcher.Constraint("Angle", 10, Q("-120 deg")))
sketch1.addConstraint(Sketcher.Constraint("DistanceX", 7, 3, -1, 1, 35.0))
sketch1.addConstraint(Sketcher.Constraint("DistanceY", 9, 3, -1, 1, 35.0))
sketch1.addConstraint(Sketcher.Constraint("DistanceY", 13, 3, -1, 1, 17.0))
sketch1.addConstraint(Sketcher.Constraint("DistanceX", 16, 3, -1, 1, 70.0))
sketch1.addConstraint(Sketcher.Constraint("DistanceY", 17, 3, -1, 1, 70.0))
sketch1.addConstraint(Sketcher.Constraint("DistanceY", 27, 3, -1, 1, 34.0))
sketch1.addConstraint(Sketcher.Constraint("DistanceY", 16, 3, -1, 1, 7.425))
sketch1.addConstraint(Sketcher.Constraint("DistanceX", 37, 3, -1, 1, 77.425))
sketch1.addConstraint(Sketcher.Constraint("DistanceX", 40, 3, -1, 1, 62.575))
sketch1.addConstraint(Sketcher.Constraint("DistanceX", 5, 3, -1, 1, 38.7125))
sketch1.addConstraint(Sketcher.Constraint("DistanceX", 8, 3, -1, 1, 31.2875))
sketch1.addConstraint(Sketcher.Constraint("DistanceX", 4, 3, -1, 1, 41.430239))
sketch1.addConstraint(Sketcher.Constraint("DistanceY", 4, 3, -1, 1, 56.909278))
sketch1.addConstraint(Sketcher.Constraint("DistanceX", 6, 3, -1, 1, 28.569761))
sketch1.addConstraint(Sketcher.Constraint("DistanceY", 6, 3, -1, 1, 64.334278))
sketch1.addConstraint(Sketcher.Constraint("DistanceY", 7, 3, -1, 1, 60.621778))
sketch1.addConstraint(Sketcher.Constraint("DistanceY", 8, 3, -1, 1, 54.19154))
sketch1.addConstraint(Sketcher.Constraint("DistanceX", 9, 3, -1, 1, 60.621778))
sketch1.addConstraint(Sketcher.Constraint("DistanceX", 3, 2, -1, 1, 55.72214))
sketch1.addConstraint(Sketcher.Constraint("DistanceY", 5, 3, -1, 1, 67.052017))
sketch1.addConstraint(Sketcher.Constraint("DistanceX", -1, 1, 0, 2, 29.155135))
sketch1.addConstraint(Sketcher.Constraint("DistanceX", 2, 2, -1, 1, 29.155135))
pad1 = body.newObject("PartDesign::Pad", "Pad")
pad1.Profile = sketch1
pad1.Length = 3

doc.recompute()
